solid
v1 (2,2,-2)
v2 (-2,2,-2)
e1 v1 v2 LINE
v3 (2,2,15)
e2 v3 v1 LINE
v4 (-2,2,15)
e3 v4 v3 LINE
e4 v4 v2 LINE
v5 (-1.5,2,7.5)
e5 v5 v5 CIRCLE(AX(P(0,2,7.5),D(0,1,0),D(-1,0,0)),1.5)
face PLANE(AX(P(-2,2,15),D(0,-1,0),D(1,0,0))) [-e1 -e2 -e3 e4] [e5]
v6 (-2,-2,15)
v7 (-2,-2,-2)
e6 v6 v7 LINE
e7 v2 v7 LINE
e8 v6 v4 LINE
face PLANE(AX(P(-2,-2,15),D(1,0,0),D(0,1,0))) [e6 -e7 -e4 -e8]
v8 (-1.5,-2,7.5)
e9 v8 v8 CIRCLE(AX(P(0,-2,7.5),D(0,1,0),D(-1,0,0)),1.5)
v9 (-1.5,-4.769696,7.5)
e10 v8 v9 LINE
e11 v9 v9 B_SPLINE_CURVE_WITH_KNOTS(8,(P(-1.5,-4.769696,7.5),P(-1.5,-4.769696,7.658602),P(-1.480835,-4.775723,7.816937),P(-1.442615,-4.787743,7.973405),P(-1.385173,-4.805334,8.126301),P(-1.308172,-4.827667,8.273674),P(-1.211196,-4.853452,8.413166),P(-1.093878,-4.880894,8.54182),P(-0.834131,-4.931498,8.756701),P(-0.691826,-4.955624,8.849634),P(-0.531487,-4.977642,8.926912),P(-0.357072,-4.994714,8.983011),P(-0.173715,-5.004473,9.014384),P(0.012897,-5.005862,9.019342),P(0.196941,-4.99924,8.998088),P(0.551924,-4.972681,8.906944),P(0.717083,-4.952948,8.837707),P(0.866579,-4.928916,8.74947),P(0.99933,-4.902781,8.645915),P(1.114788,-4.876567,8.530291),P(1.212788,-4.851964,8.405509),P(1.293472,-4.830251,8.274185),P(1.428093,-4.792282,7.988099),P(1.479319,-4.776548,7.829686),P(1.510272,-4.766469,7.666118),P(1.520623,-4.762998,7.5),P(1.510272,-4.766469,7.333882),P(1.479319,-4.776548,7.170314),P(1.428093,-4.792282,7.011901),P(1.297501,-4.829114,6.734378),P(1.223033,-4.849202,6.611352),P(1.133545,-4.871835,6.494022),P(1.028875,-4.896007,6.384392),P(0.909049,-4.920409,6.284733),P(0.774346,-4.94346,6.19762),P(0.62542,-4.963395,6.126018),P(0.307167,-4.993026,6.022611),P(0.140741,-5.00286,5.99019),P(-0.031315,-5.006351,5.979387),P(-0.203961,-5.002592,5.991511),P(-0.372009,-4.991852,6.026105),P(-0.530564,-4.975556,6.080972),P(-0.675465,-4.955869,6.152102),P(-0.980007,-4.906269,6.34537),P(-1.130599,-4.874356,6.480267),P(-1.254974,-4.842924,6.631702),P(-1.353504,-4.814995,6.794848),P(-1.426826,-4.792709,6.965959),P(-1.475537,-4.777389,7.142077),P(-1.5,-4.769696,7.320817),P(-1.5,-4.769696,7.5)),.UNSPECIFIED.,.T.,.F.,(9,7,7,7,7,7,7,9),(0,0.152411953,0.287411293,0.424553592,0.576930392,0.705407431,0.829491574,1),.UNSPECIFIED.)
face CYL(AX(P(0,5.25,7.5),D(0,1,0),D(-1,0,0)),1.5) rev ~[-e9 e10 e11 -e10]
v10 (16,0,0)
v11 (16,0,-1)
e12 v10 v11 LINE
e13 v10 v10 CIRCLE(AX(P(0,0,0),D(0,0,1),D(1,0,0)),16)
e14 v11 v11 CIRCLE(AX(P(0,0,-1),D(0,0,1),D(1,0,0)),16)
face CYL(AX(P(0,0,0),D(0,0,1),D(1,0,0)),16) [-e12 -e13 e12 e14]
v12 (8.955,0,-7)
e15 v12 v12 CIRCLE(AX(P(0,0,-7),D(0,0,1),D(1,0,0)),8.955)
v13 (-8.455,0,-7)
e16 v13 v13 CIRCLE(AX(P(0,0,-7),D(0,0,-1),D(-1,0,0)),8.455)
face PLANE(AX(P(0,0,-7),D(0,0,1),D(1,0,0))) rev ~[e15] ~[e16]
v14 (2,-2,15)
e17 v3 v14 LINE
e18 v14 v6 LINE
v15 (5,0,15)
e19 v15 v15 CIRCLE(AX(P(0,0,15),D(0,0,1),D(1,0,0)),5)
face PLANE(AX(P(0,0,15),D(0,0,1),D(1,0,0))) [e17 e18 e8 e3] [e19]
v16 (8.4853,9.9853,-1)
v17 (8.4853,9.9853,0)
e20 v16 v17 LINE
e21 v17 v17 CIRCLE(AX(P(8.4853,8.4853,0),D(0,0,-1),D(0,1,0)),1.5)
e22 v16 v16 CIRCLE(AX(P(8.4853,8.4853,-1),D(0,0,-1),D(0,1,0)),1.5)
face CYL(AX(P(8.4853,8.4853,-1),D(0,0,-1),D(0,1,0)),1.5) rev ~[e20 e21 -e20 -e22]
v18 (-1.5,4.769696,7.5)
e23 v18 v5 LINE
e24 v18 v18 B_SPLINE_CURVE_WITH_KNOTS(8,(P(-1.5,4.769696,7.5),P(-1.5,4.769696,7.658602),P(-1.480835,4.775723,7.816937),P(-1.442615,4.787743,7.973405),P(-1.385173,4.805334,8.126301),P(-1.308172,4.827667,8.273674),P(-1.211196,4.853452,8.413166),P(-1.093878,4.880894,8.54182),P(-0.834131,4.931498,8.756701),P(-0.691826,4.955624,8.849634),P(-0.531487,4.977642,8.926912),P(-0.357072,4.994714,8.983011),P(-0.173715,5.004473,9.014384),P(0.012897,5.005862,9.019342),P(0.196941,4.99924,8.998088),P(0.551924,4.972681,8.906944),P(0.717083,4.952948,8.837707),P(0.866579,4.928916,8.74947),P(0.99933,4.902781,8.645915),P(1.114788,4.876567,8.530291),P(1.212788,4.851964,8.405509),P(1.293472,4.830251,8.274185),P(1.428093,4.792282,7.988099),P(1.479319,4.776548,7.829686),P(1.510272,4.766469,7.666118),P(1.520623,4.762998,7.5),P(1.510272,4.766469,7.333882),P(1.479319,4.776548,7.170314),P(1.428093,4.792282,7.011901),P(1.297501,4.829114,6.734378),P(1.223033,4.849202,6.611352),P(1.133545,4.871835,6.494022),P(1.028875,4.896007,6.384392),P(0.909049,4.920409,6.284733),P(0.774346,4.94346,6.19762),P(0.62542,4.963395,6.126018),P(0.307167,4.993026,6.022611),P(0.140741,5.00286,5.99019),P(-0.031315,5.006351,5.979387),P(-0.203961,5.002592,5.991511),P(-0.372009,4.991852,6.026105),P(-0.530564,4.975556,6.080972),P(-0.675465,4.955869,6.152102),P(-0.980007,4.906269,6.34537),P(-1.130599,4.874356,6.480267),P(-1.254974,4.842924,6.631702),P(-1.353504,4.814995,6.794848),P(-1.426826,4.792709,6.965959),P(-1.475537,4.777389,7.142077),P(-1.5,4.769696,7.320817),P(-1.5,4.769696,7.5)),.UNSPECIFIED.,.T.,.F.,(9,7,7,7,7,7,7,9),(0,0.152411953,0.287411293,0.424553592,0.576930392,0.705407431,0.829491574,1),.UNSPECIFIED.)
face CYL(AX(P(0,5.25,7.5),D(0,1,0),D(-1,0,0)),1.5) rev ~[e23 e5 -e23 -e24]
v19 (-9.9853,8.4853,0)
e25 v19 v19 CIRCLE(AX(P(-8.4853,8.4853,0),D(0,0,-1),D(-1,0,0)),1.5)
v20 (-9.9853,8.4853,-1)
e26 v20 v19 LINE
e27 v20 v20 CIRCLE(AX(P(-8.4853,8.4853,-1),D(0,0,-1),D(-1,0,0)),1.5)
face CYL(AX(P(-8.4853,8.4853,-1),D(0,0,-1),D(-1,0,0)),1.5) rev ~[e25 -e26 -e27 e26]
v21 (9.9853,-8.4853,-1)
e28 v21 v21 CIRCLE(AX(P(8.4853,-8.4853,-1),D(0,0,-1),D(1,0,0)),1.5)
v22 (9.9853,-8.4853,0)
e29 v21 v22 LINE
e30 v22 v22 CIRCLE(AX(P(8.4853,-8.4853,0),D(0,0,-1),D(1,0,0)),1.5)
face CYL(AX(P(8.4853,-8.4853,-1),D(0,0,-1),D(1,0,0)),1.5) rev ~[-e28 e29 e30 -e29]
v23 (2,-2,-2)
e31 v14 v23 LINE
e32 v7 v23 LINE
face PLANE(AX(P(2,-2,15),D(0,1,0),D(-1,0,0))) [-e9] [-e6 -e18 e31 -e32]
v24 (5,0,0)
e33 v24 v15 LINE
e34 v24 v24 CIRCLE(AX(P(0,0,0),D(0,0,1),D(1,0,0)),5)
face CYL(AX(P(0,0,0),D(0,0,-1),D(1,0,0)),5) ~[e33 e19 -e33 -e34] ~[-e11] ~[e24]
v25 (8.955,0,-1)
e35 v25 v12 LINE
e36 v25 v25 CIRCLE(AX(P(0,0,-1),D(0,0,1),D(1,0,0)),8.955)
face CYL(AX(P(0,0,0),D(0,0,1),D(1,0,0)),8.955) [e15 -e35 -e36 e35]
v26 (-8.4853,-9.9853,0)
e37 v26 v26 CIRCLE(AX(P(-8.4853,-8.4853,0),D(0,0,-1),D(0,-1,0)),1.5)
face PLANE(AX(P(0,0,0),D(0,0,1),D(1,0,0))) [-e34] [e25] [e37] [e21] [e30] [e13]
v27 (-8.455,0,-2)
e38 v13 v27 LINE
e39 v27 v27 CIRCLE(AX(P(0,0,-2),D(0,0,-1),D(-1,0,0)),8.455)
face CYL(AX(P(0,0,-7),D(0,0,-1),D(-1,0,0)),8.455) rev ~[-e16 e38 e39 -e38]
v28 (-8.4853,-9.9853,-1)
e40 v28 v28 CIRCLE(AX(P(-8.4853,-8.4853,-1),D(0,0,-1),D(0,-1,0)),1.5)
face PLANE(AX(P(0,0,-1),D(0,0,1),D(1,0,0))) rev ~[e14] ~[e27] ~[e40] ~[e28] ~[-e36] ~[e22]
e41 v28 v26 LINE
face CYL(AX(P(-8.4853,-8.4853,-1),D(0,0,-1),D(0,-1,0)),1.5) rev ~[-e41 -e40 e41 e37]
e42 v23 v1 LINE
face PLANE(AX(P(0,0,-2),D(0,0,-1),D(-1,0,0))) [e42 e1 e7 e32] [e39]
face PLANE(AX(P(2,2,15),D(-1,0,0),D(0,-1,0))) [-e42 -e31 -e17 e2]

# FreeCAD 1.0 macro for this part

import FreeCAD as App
import Part
import Sketcher
Q = App.Units.Quantity

doc = App.newDocument("Part")
params = doc.addObject("Spreadsheet::Sheet", "Params")
for row, (alias, value) in enumerate([
    ("sketch1_diameter", "32 mm"),
    ("pad1_length", "1 mm"),
    ("sketch2_diameter", "17.91 mm"),
    ("pad2_length", "7 mm"),
    ("sketch3_diameter", "16.91 mm"),
    ("pocket1_length", "5 mm"),
    ("sketch4_diameter", "10 mm"),
    ("pad3_length", "15 mm"),
    ("sketch5_width", "4 mm"),
    ("sketch6_diameter", "3 mm"),
    ("sketch7_diameter", "3 mm"),
], start=1):
    params.set(f"A{row}", alias)
    params.set(f"B{row}", "=" + value)
    params.setAlias(f"B{row}", alias)

body = doc.addObject("PartDesign::Body", "Body")

sketch1 = body.newObject("Sketcher::SketchObject", "Sketch")
sketch1.AttachmentSupport = (doc.getObject("XY_Plane"), [""])
sketch1.MapMode = "FlatFace"
sketch1.addGeometry(Part.Circle(App.Vector(0, 0, 0), App.Vector(0, 0, 1), 16), False)
sketch1.addConstraint([
    Sketcher.Constraint("Coincident", 0, 3, -1, 1),
    Sketcher.Constraint("Diameter", 0, Q("32 mm")),
])
sketch1.setExpression("Constraints[1]", "Params.sketch1_diameter")
pad1 = body.newObject("PartDesign::Pad", "Pad")
pad1.Profile = sketch1
pad1.setExpression("Length", "Params.pad1_length")
pad1.Reversed = True

sketch2 = body.newObject("Sketcher::SketchObject", "Sketch001")
sketch2.AttachmentSupport = (doc.getObject("XY_Plane"), [""])
sketch2.MapMode = "FlatFace"
sketch2.addGeometry(Part.Circle(App.Vector(0, 0, 0), App.Vector(0, 0, 1), 8.955), False)
sketch2.addConstraint([
    Sketcher.Constraint("Coincident", 0, 3, -1, 1),
    Sketcher.Constraint("Diameter", 0, Q("17.91 mm")),
])
sketch2.setExpression("Constraints[1]", "Params.sketch2_diameter")
pad2 = body.newObject("PartDesign::Pad", "Pad001")
pad2.Profile = sketch2
pad2.setExpression("Length", "Params.pad2_length")
pad2.Reversed = True

sketch3 = body.newObject("Sketcher::SketchObject", "Sketch002")
sketch3.AttachmentSupport = (doc.getObject("XY_Plane"), [""])
sketch3.MapMode = "FlatFace"
sketch3.AttachmentOffset = App.Placement(App.Vector(0, 0, -7), App.Rotation())
sketch3.addGeometry(Part.Circle(App.Vector(0, 0, 0), App.Vector(0, 0, 1), 8.455), False)
sketch3.addConstraint([
    Sketcher.Constraint("Coincident", 0, 3, -1, 1),
    Sketcher.Constraint("Diameter", 0, Q("16.91 mm")),
])
sketch3.setExpression("Constraints[1]", "Params.sketch3_diameter")
pocket1 = body.newObject("PartDesign::Pocket", "Pocket")
pocket1.Profile = sketch3
pocket1.setExpression("Length", "Params.pocket1_length")
pocket1.Reversed = True

sketch4 = body.newObject("Sketcher::SketchObject", "Sketch003")
sketch4.AttachmentSupport = (doc.getObject("XY_Plane"), [""])
sketch4.MapMode = "FlatFace"
sketch4.addGeometry(Part.Circle(App.Vector(0, 0, 0), App.Vector(0, 0, 1), 5), False)
sketch4.addConstraint([
    Sketcher.Constraint("Coincident", 0, 3, -1, 1),
    Sketcher.Constraint("Diameter", 0, Q("10 mm")),
])
sketch4.setExpression("Constraints[1]", "Params.sketch4_diameter")
pad3 = body.newObject("PartDesign::Pad", "Pad002")
pad3.Profile = sketch4
pad3.setExpression("Length", "Params.pad3_length")

sketch5 = body.newObject("Sketcher::SketchObject", "Sketch004")
sketch5.AttachmentSupport = (doc.getObject("XY_Plane"), [""])
sketch5.MapMode = "FlatFace"
sketch5.AttachmentOffset = App.Placement(App.Vector(0, 0, 15), App.Rotation())
sketch5.addGeometry([
    Part.LineSegment(App.Vector(2, 2, 0), App.Vector(-2, 2, 0)),
    Part.LineSegment(App.Vector(-2, 2, 0), App.Vector(-2, -2, 0)),
    Part.LineSegment(App.Vector(-2, -2, 0), App.Vector(2, -2, 0)),
    Part.LineSegment(App.Vector(2, -2, 0), App.Vector(2, 2, 0)),
], False)
sketch5.addConstraint([
    Sketcher.Constraint("Coincident", 0, 2, 1, 1),
    Sketcher.Constraint("Coincident", 1, 2, 2, 1),
    Sketcher.Constraint("Coincident", 2, 2, 3, 1),
    Sketcher.Constraint("Coincident", 3, 2, 0, 1),
    Sketcher.Constraint("Horizontal", 0),
    Sketcher.Constraint("Vertical", 1),
    Sketcher.Constraint("Horizontal", 2),
    Sketcher.Constraint("Vertical", 3),
    Sketcher.Constraint("Symmetric", 0, 2, 2, 2, -1, 1),
    Sketcher.Constraint("Equal", 2, 1),
    Sketcher.Constraint("DistanceX", 0, 2, 0, 1, Q("4 mm")),
])
sketch5.setExpression("Constraints[10]", "Params.sketch5_width")
pocket2 = body.newObject("PartDesign::Pocket", "Pocket001")
pocket2.Profile = sketch5
pocket2.Type = "ThroughAll"

sketch6 = body.newObject("Sketcher::SketchObject", "Sketch005")
sketch6.AttachmentSupport = (doc.getObject("XZ_Plane"), [""])
sketch6.MapMode = "FlatFace"
sketch6.AttachmentOffset = App.Placement(App.Vector(0, 0, -5.25), App.Rotation())
sketch6.addGeometry(Part.Circle(App.Vector(0, 7.5, 0), App.Vector(0, 0, 1), 1.5), False)
sketch6.addConstraint([
    Sketcher.Constraint("PointOnObject", 0, 3, -2),
    Sketcher.Constraint("Diameter", 0, Q("3 mm")),
    Sketcher.Constraint("DistanceY", -1, 1, 0, 3, Q("7.5 mm")),
])
sketch6.setExpression("Constraints[1]", "Params.sketch6_diameter")
pocket3 = body.newObject("PartDesign::Pocket", "Pocket002")
pocket3.Profile = sketch6
pocket3.Type = "ThroughAll"
pocket3.Reversed = True

sketch7 = body.newObject("Sketcher::SketchObject", "Sketch006")
sketch7.AttachmentSupport = (doc.getObject("XY_Plane"), [""])
sketch7.MapMode = "FlatFace"
sketch7.AttachmentOffset = App.Placement(App.Vector(0, 0, -1), App.Rotation())
sketch7.addGeometry(Part.Circle(App.Vector(-8.4853, 8.4853, 0), App.Vector(0, 0, 1), 1.5), False)
sketch7.addConstraint([
    Sketcher.Constraint("Diameter", 0, Q("3 mm")),
    Sketcher.Constraint("DistanceX", 0, 3, -1, 1, Q("8.4853 mm")),
    Sketcher.Constraint("DistanceY", -1, 1, 0, 3, Q("8.4853 mm")),
])
sketch7.setExpression("Constraints[0]", "Params.sketch7_diameter")
pocket4 = body.newObject("PartDesign::Pocket", "Pocket003")
pocket4.Profile = sketch7
pocket4.Type = "ThroughAll"
pocket4.Reversed = True
doc.recompute()

polarpattern = body.newObject("PartDesign::PolarPattern", "PolarPattern")
polarpattern.Originals = [pocket4]
polarpattern.Axis = (doc.getObject("Z_Axis"), [""])
polarpattern.Angle = 360
polarpattern.Occurrences = 4
body.Tip = polarpattern

doc.recompute()
